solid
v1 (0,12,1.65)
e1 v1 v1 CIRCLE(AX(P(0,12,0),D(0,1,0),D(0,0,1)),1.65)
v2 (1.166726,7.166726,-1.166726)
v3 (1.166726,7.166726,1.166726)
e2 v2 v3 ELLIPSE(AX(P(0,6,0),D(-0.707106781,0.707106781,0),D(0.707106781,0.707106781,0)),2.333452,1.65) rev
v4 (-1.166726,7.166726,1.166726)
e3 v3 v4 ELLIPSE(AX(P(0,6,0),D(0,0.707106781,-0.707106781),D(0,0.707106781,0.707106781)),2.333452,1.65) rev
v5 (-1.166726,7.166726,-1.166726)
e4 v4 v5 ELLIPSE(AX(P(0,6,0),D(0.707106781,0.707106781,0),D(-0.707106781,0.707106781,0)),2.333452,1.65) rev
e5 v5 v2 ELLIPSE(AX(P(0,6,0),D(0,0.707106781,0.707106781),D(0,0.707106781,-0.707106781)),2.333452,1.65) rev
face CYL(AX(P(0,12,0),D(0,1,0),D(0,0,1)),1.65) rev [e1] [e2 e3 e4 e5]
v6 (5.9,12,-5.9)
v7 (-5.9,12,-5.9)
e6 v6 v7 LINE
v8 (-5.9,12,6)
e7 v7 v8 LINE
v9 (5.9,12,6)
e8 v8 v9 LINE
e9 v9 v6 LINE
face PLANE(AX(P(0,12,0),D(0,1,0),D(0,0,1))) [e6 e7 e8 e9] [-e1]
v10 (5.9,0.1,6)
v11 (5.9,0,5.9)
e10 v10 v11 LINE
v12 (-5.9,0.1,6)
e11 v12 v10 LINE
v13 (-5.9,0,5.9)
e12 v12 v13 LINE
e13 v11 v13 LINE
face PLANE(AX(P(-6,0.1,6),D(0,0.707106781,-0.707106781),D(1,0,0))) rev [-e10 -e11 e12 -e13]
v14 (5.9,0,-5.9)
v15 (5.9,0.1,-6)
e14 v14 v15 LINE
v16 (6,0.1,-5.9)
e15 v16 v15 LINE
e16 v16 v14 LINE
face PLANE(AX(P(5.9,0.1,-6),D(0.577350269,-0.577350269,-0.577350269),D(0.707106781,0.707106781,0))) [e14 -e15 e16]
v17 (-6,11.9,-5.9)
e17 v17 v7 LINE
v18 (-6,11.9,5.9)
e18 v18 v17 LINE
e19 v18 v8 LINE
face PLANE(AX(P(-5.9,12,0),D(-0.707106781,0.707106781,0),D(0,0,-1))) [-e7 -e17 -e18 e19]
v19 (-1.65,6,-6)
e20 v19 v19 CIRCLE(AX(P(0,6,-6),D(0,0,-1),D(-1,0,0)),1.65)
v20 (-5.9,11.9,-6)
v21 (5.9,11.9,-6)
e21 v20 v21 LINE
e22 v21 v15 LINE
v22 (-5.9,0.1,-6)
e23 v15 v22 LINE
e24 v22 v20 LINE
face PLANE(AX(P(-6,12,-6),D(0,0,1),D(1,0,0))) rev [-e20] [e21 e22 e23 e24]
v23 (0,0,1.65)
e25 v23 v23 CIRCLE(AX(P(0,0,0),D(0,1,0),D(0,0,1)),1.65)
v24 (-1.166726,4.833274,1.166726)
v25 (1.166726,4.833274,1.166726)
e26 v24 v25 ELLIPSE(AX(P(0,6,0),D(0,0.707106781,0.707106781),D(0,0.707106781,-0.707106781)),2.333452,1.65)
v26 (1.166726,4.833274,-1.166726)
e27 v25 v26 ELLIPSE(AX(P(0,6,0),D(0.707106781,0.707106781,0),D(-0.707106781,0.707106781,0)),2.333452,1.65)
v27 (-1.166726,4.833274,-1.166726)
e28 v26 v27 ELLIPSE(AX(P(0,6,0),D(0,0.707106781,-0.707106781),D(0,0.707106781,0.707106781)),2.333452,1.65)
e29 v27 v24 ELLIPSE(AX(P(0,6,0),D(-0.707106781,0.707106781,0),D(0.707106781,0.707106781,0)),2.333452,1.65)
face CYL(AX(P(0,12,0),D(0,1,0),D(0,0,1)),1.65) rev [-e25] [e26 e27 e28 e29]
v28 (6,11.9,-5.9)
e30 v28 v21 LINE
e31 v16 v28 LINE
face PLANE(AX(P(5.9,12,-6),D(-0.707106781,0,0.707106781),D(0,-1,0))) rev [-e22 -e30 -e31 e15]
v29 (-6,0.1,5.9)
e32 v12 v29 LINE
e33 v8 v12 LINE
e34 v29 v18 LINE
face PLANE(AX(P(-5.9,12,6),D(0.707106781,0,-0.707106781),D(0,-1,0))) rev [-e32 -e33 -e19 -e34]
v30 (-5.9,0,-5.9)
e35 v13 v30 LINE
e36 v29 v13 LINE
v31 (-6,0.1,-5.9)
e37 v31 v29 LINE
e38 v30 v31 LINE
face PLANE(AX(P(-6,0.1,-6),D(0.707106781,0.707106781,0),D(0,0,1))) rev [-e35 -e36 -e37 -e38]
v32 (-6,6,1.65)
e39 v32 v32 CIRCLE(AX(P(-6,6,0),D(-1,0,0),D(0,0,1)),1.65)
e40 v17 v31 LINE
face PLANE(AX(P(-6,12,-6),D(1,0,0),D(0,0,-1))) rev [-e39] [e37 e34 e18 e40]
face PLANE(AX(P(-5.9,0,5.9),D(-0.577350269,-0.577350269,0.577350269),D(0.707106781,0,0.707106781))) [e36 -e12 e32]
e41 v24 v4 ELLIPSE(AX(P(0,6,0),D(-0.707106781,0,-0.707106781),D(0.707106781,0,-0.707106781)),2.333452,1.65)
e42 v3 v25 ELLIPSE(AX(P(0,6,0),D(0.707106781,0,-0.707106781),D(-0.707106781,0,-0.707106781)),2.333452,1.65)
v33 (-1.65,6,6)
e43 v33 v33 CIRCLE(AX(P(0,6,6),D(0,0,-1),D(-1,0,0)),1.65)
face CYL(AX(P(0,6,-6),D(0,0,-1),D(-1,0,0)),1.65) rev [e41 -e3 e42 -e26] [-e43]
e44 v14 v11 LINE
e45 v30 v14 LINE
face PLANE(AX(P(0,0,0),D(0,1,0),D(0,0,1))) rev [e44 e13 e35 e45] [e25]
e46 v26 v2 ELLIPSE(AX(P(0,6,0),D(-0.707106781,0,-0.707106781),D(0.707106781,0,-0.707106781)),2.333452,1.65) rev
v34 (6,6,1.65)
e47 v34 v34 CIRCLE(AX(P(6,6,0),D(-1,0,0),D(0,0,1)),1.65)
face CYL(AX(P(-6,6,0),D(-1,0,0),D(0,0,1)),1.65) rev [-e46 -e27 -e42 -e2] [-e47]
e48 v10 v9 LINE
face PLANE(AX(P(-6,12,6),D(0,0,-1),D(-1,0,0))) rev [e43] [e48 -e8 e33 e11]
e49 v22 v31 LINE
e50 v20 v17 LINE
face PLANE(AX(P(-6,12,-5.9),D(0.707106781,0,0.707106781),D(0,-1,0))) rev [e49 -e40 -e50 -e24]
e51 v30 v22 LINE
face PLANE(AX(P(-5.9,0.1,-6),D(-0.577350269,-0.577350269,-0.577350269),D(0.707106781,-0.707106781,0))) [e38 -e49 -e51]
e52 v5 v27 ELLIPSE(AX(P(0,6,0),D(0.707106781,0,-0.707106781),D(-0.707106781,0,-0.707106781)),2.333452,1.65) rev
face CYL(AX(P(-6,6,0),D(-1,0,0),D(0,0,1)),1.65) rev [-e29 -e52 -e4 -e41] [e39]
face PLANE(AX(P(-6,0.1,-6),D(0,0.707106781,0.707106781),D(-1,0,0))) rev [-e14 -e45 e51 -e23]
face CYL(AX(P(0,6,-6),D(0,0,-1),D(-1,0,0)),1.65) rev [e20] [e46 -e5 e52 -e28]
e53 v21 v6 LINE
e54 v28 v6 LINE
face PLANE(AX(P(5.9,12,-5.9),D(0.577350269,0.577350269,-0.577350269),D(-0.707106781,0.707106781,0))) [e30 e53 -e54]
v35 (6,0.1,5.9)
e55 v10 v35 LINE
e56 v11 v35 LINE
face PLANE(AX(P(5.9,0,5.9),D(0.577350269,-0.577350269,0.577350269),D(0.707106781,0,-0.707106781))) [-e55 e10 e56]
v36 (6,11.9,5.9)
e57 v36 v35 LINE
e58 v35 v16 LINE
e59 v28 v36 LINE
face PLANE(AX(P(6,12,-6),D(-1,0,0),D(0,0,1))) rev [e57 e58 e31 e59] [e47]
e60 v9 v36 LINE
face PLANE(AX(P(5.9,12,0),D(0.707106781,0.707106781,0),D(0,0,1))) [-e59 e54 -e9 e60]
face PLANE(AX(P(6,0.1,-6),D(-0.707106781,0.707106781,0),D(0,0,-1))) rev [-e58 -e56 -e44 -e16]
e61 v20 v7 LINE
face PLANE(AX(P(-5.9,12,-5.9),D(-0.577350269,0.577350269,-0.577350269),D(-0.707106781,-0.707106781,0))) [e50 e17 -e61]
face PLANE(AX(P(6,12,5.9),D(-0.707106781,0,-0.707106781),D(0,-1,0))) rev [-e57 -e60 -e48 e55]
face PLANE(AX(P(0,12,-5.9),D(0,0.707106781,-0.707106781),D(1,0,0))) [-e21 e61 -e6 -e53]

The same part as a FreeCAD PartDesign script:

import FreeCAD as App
import Part
import Sketcher

V = App.Vector
Q = App.Units.Quantity


def edges_at(feature, points):
    """Names of the edges that pass closest to the given points."""
    edges = feature.Shape.Edges
    near = lambda p: min(range(len(edges)), key=lambda i: edges[i].distToShape(Part.Vertex(*p))[0])
    return sorted({f"Edge{near(p) + 1}" for p in points})

doc = App.newDocument("Part")
body = doc.addObject("PartDesign::Body", "Body")

# Sketch on XZ plane
sketch1 = body.newObject("Sketcher::SketchObject", "Sketch")
sketch1.AttachmentSupport = (doc.getObject("XZ_Plane"), [""])
sketch1.MapMode = "FlatFace"
sketch1.addGeometry([
    Part.LineSegment(V(-6, -6, 0), V(-6, 6, 0)),
    Part.LineSegment(V(-6, 6, 0), V(6, 6, 0)),
    Part.LineSegment(V(6, 6, 0), V(6, -6, 0)),
    Part.LineSegment(V(6, -6, 0), V(-6, -6, 0)),
], False)
sketch1.addConstraint([
    Sketcher.Constraint("Coincident", 0, 2, 1, 1),
    Sketcher.Constraint("Coincident", 1, 2, 2, 1),
    Sketcher.Constraint("Coincident", 2, 2, 3, 1),
    Sketcher.Constraint("Coincident", 3, 2, 0, 1),
    Sketcher.Constraint("Vertical", 0),
    Sketcher.Constraint("Horizontal", 1),
    Sketcher.Constraint("Vertical", 2),
    Sketcher.Constraint("Horizontal", 3),
    Sketcher.Constraint("Symmetric", 0, 2, 2, 2, -1, 1),
    Sketcher.Constraint("Equal", 3, 0),
    Sketcher.Constraint("DistanceX", 1, 1, 1, 2, Q("12 mm")),
])
pad1 = body.newObject("PartDesign::Pad", "Pad")
pad1.Profile = sketch1
pad1.Length = 12
pad1.Reversed = True

# Sketch on XZ plane
sketch2 = body.newObject("Sketcher::SketchObject", "Sketch001")
sketch2.AttachmentSupport = (doc.getObject("XZ_Plane"), [""])
sketch2.MapMode = "FlatFace"
sketch2.AttachmentOffset = App.Placement(V(0, 0, -12), App.Rotation())
sketch2.addGeometry(Part.Circle(V(0, 0, 0), V(0, 0, 1), 1.6), False)
sketch2.addConstraint([
    Sketcher.Constraint("Coincident", 0, 3, -1, 1),
    Sketcher.Constraint("Diameter", 0, Q("3.3 mm")),
])
doc.recompute()
hole = body.newObject("PartDesign::Hole", "Hole")
hole.Profile = sketch2
hole.ThreadType = "None"
hole.Diameter = 3.3
hole.DepthType = "ThroughAll"
hole.Reversed = True

# Sketch on XY plane
sketch3 = body.newObject("Sketcher::SketchObject", "Sketch002")
sketch3.AttachmentSupport = (doc.getObject("XY_Plane"), [""])
sketch3.MapMode = "FlatFace"
sketch3.AttachmentOffset = App.Placement(V(0, 0, -6), App.Rotation())
sketch3.addGeometry(Part.Circle(V(0, 6, 0), V(0, 0, 1), 1.6), False)
sketch3.addConstraint([
    Sketcher.Constraint("PointOnObject", 0, 3, -2),
    Sketcher.Constraint("Diameter", 0, Q("3.3 mm")),
    Sketcher.Constraint("DistanceY", -1, 1, 0, 3, Q("6 mm")),
])
doc.recompute()
hole2 = body.newObject("PartDesign::Hole", "Hole001")
hole2.Profile = sketch3
hole2.ThreadType = "None"
hole2.Diameter = 3.3
hole2.DepthType = "ThroughAll"
hole2.Reversed = True

# Sketch on YZ plane
sketch4 = body.newObject("Sketcher::SketchObject", "Sketch003")
sketch4.AttachmentSupport = (doc.getObject("YZ_Plane"), [""])
sketch4.MapMode = "FlatFace"
sketch4.AttachmentOffset = App.Placement(V(0, 0, -6), App.Rotation())
sketch4.addGeometry(Part.Circle(V(6, 0, 0), V(0, 0, 1), 1.6), False)
sketch4.addConstraint([
    Sketcher.Constraint("PointOnObject", 0, 3, -1),
    Sketcher.Constraint("Diameter", 0, Q("3.3 mm")),
    Sketcher.Constraint("DistanceX", -1, 1, 0, 3, Q("6 mm")),
])
doc.recompute()
hole3 = body.newObject("PartDesign::Hole", "Hole002")
hole3.Profile = sketch4
hole3.ThreadType = "None"
hole3.Diameter = 3.3
hole3.DepthType = "ThroughAll"
hole3.Reversed = True
doc.recompute()

chamfer = body.newObject("PartDesign::Chamfer", "Chamfer")
chamfer.Base = (hole3, edges_at(hole3, [
    (-6, 12, 0),
    (6, 12, 0),
    (0, 0, 6),
    (-6, 0, 0),
    (0, 0, -6),
    (6, 0, 0),
    (6, 6, 6),
    (-6, 6, 6),
    (-6, 6, -6),
    (6, 6, -6),
    (0, 12, -6),
]))
chamfer.Size = 0.1

doc.recompute()
